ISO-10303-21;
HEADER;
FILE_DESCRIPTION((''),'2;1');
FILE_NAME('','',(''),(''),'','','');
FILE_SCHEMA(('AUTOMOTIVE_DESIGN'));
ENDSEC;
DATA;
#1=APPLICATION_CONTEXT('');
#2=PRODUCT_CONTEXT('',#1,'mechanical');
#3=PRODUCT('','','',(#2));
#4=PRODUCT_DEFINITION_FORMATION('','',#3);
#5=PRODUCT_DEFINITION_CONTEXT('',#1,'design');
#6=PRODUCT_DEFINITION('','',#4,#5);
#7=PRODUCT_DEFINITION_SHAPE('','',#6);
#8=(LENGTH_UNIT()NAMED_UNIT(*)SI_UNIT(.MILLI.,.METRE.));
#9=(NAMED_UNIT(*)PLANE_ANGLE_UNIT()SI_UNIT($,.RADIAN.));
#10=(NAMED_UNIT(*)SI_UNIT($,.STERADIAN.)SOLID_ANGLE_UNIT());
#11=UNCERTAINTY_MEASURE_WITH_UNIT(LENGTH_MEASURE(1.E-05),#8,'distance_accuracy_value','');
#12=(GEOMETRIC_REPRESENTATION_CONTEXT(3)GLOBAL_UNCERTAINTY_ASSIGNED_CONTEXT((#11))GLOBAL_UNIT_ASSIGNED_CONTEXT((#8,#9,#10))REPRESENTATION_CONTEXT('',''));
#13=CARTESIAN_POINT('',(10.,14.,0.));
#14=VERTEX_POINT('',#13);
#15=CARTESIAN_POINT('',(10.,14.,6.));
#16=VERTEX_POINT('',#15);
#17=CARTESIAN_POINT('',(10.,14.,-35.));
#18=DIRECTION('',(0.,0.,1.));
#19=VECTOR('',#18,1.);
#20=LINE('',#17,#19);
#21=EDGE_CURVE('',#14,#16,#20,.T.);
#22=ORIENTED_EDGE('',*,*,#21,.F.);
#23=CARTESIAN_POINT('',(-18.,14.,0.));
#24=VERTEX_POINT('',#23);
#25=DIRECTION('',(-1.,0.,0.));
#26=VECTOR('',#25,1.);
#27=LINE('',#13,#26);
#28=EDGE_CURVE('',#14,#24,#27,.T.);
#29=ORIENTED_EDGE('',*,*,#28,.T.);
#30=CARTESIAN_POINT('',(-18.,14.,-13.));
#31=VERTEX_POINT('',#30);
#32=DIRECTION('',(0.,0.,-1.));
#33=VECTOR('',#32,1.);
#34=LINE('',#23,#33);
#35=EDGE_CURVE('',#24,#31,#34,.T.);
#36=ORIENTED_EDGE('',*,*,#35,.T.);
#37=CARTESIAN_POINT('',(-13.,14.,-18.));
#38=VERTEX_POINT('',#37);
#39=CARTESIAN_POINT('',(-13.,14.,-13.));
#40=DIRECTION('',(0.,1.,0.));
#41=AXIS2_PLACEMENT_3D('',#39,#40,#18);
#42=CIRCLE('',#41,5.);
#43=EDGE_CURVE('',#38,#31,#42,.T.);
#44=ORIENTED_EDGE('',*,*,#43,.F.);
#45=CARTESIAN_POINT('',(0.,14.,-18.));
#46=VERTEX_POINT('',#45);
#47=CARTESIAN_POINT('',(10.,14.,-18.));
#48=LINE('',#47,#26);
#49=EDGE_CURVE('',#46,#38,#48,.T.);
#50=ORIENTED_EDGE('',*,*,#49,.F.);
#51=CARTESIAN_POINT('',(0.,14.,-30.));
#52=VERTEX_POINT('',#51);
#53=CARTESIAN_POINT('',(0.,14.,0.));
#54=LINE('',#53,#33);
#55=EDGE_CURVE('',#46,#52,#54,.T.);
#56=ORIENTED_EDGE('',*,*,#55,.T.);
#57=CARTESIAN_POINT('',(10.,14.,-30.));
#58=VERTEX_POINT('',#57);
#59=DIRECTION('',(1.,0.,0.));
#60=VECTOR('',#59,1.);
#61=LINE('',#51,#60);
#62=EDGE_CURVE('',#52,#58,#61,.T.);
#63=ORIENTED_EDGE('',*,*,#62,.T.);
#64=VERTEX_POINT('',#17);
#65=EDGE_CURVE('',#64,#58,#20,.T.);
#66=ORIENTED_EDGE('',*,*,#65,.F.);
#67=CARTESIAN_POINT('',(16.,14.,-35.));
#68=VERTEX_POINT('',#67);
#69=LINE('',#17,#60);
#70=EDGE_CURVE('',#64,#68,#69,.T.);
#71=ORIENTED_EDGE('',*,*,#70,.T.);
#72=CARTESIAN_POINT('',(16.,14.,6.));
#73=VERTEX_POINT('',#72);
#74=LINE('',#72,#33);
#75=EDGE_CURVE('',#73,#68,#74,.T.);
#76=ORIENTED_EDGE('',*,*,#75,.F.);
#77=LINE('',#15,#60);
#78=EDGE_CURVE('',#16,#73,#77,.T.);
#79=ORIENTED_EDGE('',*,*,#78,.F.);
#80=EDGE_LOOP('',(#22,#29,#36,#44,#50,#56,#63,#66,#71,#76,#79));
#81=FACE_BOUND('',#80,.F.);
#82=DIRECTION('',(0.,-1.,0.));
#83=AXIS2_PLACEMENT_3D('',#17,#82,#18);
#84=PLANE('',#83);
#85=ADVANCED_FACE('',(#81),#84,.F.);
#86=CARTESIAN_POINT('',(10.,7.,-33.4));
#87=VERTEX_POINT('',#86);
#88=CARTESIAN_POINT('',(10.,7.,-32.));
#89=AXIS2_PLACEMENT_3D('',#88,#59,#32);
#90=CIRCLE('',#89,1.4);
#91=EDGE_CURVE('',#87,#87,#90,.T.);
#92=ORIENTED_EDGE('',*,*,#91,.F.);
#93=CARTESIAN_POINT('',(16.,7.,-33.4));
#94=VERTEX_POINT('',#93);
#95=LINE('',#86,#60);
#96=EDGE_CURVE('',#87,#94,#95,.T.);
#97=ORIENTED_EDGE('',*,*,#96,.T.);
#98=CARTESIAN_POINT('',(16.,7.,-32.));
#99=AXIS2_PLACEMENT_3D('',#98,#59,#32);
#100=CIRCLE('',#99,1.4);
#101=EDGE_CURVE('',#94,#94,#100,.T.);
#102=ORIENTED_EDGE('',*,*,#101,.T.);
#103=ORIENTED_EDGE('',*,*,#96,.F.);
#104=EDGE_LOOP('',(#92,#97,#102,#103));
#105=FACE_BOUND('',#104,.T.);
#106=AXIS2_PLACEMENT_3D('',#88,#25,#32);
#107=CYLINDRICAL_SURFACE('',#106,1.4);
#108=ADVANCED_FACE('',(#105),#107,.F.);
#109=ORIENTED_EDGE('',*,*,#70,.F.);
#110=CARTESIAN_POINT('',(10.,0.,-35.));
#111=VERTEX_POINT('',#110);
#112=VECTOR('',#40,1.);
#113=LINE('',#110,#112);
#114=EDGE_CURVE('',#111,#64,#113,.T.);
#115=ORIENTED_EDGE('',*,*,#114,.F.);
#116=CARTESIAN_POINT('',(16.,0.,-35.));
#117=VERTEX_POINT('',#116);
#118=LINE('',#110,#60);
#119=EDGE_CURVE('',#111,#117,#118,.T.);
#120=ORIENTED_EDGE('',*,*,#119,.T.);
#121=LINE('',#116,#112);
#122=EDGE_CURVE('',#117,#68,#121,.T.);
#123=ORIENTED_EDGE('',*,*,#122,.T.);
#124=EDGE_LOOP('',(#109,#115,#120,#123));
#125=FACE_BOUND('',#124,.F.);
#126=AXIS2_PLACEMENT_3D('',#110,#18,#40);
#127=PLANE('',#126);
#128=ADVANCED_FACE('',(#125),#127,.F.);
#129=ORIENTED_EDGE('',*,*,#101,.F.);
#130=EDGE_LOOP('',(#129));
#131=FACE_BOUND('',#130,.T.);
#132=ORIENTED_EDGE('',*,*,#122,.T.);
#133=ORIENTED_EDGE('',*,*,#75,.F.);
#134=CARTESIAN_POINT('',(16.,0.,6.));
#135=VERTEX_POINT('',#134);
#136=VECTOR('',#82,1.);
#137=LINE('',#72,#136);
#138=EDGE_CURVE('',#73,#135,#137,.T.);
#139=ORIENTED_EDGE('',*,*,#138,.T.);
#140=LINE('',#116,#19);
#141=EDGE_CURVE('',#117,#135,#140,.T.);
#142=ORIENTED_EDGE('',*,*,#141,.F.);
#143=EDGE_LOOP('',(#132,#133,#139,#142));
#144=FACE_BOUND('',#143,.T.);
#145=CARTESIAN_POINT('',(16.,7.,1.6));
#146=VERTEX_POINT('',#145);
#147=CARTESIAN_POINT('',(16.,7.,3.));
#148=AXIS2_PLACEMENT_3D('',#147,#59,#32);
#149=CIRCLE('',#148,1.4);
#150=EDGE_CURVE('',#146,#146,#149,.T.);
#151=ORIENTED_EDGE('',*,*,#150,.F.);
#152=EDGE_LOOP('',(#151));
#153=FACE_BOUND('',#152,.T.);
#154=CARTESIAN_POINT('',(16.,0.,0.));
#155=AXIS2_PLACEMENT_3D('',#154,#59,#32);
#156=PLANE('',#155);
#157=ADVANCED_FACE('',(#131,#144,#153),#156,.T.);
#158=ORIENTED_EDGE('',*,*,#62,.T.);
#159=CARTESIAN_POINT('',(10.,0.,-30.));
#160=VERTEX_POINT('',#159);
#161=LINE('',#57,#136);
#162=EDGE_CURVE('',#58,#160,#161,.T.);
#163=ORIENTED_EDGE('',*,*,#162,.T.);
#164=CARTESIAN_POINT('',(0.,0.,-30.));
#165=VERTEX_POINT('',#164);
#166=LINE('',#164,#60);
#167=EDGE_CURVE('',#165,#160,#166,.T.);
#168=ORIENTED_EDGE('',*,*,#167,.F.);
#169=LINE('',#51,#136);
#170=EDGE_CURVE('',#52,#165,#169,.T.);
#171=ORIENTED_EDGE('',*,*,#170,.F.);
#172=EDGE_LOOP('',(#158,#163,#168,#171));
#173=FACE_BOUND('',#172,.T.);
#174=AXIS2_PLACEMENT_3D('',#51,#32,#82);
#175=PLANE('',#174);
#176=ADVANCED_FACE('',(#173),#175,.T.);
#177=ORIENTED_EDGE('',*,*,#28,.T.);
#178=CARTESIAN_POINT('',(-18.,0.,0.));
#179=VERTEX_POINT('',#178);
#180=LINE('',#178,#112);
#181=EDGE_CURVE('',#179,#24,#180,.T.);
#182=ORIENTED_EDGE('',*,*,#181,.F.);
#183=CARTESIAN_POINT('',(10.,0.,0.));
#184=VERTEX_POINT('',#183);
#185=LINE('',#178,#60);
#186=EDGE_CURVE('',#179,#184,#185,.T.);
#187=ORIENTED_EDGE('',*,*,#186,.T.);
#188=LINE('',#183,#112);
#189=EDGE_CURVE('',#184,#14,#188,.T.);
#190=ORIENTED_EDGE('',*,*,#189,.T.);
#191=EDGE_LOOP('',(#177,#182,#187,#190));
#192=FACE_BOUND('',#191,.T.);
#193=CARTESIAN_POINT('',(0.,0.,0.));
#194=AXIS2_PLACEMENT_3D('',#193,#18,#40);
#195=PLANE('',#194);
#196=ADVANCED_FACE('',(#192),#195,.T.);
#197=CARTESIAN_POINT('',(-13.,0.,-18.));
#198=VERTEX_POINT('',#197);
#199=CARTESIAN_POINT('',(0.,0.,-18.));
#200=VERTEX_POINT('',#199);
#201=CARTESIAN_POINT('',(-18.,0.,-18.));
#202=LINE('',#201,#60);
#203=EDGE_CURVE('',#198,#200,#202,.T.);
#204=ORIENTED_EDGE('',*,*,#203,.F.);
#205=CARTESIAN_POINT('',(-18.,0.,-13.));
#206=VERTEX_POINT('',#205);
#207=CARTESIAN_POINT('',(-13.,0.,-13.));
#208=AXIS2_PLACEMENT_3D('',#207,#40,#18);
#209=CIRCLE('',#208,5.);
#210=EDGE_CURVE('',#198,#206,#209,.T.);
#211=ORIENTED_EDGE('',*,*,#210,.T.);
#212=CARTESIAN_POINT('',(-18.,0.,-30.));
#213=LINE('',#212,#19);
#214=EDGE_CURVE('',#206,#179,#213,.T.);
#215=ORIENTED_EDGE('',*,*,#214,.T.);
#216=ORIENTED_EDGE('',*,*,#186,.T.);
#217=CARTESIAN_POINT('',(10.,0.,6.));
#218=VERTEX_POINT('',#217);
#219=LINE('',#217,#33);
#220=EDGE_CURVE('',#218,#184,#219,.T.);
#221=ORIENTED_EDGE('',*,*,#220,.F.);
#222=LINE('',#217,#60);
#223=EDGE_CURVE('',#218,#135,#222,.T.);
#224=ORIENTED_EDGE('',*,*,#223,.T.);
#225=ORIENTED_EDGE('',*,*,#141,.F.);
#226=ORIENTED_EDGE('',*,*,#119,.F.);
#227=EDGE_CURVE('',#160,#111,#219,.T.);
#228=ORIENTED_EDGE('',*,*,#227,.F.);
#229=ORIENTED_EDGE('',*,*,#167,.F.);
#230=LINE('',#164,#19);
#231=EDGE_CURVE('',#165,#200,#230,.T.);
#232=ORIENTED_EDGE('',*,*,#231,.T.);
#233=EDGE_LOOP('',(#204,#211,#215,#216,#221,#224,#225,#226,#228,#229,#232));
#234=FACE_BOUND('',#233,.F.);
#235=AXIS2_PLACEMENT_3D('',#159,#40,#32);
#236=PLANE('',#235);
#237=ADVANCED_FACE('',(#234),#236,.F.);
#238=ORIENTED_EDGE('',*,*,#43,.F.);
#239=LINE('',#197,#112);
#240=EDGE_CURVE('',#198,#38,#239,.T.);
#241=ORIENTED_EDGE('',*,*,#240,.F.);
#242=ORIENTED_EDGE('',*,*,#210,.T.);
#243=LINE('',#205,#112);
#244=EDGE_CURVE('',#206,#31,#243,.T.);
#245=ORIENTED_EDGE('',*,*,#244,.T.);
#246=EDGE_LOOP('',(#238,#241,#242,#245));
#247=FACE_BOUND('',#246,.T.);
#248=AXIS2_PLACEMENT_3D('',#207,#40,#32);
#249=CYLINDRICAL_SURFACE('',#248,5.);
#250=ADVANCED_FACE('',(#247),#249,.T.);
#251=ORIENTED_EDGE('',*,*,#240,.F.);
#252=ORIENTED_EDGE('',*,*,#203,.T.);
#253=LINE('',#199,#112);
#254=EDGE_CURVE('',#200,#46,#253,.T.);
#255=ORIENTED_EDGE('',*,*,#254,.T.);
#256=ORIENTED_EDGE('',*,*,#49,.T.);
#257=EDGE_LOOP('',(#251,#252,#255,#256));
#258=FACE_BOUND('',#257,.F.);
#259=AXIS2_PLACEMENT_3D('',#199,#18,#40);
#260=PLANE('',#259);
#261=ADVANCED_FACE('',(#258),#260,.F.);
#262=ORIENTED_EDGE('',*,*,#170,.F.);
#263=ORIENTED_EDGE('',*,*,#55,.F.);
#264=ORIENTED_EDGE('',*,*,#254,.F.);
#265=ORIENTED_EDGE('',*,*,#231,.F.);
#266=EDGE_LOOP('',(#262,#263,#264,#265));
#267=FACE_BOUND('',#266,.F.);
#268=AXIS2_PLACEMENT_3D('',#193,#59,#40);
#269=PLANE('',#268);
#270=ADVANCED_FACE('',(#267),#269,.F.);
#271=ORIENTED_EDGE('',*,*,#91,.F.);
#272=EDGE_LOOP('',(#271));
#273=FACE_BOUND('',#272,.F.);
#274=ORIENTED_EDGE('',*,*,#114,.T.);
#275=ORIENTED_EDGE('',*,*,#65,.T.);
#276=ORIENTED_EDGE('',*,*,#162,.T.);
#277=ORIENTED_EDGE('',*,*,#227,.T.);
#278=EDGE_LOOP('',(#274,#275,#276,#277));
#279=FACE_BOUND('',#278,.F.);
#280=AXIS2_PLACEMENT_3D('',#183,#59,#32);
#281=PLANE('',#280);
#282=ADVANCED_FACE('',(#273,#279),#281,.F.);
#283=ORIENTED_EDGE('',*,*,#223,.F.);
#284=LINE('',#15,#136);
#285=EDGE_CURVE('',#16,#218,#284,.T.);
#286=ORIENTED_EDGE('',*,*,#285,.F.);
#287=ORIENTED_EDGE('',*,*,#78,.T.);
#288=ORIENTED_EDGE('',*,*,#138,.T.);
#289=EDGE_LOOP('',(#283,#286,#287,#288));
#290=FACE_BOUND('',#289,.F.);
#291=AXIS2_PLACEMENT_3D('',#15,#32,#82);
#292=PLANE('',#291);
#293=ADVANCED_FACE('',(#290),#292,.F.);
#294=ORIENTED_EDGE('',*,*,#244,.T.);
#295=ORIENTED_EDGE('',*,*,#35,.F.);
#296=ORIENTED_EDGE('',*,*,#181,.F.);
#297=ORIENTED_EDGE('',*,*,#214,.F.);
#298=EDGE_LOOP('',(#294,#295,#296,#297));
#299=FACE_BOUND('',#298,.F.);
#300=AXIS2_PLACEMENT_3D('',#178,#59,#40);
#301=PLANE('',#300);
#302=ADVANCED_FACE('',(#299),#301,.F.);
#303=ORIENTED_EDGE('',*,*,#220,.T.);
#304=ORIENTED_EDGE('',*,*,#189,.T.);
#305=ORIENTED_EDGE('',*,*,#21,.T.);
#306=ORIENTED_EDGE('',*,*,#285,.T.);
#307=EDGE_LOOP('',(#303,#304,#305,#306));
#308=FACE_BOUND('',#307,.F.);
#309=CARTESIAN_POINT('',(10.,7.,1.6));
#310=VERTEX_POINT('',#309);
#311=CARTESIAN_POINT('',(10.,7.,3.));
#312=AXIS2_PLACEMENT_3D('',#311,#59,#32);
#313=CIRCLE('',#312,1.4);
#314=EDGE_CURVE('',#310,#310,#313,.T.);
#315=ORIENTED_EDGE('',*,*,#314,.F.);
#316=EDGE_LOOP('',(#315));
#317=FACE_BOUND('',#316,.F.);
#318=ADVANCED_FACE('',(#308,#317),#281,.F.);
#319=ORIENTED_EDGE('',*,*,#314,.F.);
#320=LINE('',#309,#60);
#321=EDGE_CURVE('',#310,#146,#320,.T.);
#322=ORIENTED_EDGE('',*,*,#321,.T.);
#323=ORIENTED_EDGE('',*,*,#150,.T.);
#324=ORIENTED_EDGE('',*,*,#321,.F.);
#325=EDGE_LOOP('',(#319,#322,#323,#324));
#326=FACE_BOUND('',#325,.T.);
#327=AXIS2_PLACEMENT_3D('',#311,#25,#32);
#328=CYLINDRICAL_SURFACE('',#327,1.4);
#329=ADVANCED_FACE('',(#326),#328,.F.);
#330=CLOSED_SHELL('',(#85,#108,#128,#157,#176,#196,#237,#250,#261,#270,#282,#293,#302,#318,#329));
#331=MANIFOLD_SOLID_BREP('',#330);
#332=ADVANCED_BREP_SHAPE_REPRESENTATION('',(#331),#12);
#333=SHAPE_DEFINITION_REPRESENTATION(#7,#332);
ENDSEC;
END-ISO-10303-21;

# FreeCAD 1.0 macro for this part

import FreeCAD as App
import Part
import Sketcher
from FreeCAD import Vector


def edges_at(feature, points):
    """Names of the edges that pass closest to the given points."""
    edges = feature.Shape.Edges
    near = lambda p: min(range(len(edges)), key=lambda i: edges[i].distToShape(Part.Vertex(*p))[0])
    return sorted({f"Edge{near(p) + 1}" for p in points})

doc = App.newDocument("Part")
body = doc.addObject("PartDesign::Body", "Body")

sketch1 = doc.addObject("Sketcher::SketchObject", "Sketch")
body.addObject(sketch1)
sketch1.AttachmentSupport = (doc.YZ_Plane, [""])
sketch1.MapMode = "FlatFace"
sketch1.addGeometry(Part.LineSegment(Vector(14, -18, 0), Vector(0, -18, 0)), False)
sketch1.addGeometry(Part.LineSegment(Vector(0, -18, 0), Vector(0, -30, 0)), False)
sketch1.addGeometry(Part.LineSegment(Vector(0, -30, 0), Vector(14, -30, 0)), False)
sketch1.addGeometry(Part.LineSegment(Vector(14, -30, 0), Vector(14, -18, 0)), False)
sketch1.addConstraint(Sketcher.Constraint("Coincident", 0, 2, 1, 1))
sketch1.addConstraint(Sketcher.Constraint("Coincident", 1, 2, 2, 1))
sketch1.addConstraint(Sketcher.Constraint("Coincident", 2, 2, 3, 1))
sketch1.addConstraint(Sketcher.Constraint("Coincident", 3, 2, 0, 1))
sketch1.addConstraint(Sketcher.Constraint("Horizontal", 0))
sketch1.addConstraint(Sketcher.Constraint("Vertical", 1))
sketch1.addConstraint(Sketcher.Constraint("Horizontal", 2))
sketch1.addConstraint(Sketcher.Constraint("Vertical", 3))
sketch1.addConstraint(Sketcher.Constraint("PointOnObject", 0, 2, -2))
sketch1.addConstraint(Sketcher.Constraint("DistanceX", 0, 2, 0, 1, 14.0))
sketch1.addConstraint(Sketcher.Constraint("DistanceY", 1, 2, 1, 1, 12.0))
sketch1.addConstraint(Sketcher.Constraint("DistanceY", 1, 2, -1, 1, 30.0))
pad1 = doc.addObject("PartDesign::Pad", "Pad")
body.addObject(pad1)
pad1.Profile = sketch1
pad1.Length = 10

sketch2 = doc.addObject("Sketcher::SketchObject", "Sketch001")
body.addObject(sketch2)
sketch2.AttachmentSupport = (doc.YZ_Plane, [""])
sketch2.MapMode = "FlatFace"
sketch2.addGeometry(Part.LineSegment(Vector(14, 0, 0), Vector(0, 0, 0)), False)
sketch2.addGeometry(Part.LineSegment(Vector(0, 0, 0), Vector(0, -18, 0)), False)
sketch2.addGeometry(Part.LineSegment(Vector(0, -18, 0), Vector(14, -18, 0)), False)
sketch2.addGeometry(Part.LineSegment(Vector(14, -18, 0), Vector(14, 0, 0)), False)
sketch2.addConstraint(Sketcher.Constraint("Coincident", 0, 2, 1, 1))
sketch2.addConstraint(Sketcher.Constraint("Coincident", 1, 2, 2, 1))
sketch2.addConstraint(Sketcher.Constraint("Coincident", 2, 2, 3, 1))
sketch2.addConstraint(Sketcher.Constraint("Coincident", 3, 2, 0, 1))
sketch2.addConstraint(Sketcher.Constraint("Horizontal", 0))
sketch2.addConstraint(Sketcher.Constraint("Vertical", 1))
sketch2.addConstraint(Sketcher.Constraint("Horizontal", 2))
sketch2.addConstraint(Sketcher.Constraint("Vertical", 3))
sketch2.addConstraint(Sketcher.Constraint("Coincident", 0, 2, -1, 1))
sketch2.addConstraint(Sketcher.Constraint("DistanceX", 0, 2, 0, 1, 14.0))
sketch2.addConstraint(Sketcher.Constraint("DistanceY", 1, 2, 1, 1, 18.0))
pad2 = doc.addObject("PartDesign::Pad", "Pad001")
body.addObject(pad2)
pad2.Profile = sketch2
pad2.Type = "TwoLengths"
pad2.Length = 10
pad2.Length2 = 18
doc.recompute()

fillet = doc.addObject("PartDesign::Fillet", "Fillet")
body.addObject(fillet)
fillet.Base = (pad2, edges_at(pad2, [(-18, 7, -18)]))
fillet.Radius = 5

sketch3 = doc.addObject("Sketcher::SketchObject", "Sketch002")
body.addObject(sketch3)
sketch3.AttachmentSupport = (doc.YZ_Plane, [""])
sketch3.MapMode = "FlatFace"
sketch3.AttachmentOffset = App.Placement(Vector(0, 0, 10), App.Rotation())
sketch3.addGeometry(Part.LineSegment(Vector(0, -35, 0), Vector(14, -35, 0)), False)
sketch3.addGeometry(Part.LineSegment(Vector(14, -35, 0), Vector(14, 6, 0)), False)
sketch3.addGeometry(Part.LineSegment(Vector(14, 6, 0), Vector(0, 6, 0)), False)
sketch3.addGeometry(Part.LineSegment(Vector(0, 6, 0), Vector(0, -35, 0)), False)
sketch3.addGeometry(Part.Circle(Vector(7, -32, 0), Vector(0, 0, 1), 1.4), False)
sketch3.addGeometry(Part.Circle(Vector(7, 3, 0), Vector(0, 0, 1), 1.4), False)
sketch3.addConstraint(Sketcher.Constraint("Coincident", 0, 2, 1, 1))
sketch3.addConstraint(Sketcher.Constraint("Coincident", 1, 2, 2, 1))
sketch3.addConstraint(Sketcher.Constraint("Coincident", 2, 2, 3, 1))
sketch3.addConstraint(Sketcher.Constraint("Coincident", 3, 2, 0, 1))
sketch3.addConstraint(Sketcher.Constraint("Horizontal", 0))
sketch3.addConstraint(Sketcher.Constraint("Vertical", 1))
sketch3.addConstraint(Sketcher.Constraint("Horizontal", 2))
sketch3.addConstraint(Sketcher.Constraint("Vertical", 3))
sketch3.addConstraint(Sketcher.Constraint("Equal", 4, 5))
sketch3.addConstraint(Sketcher.Constraint("PointOnObject", 2, 2, -2))
sketch3.addConstraint(Sketcher.Constraint("Vertical", 4, 3, 5, 3))
sketch3.addConstraint(Sketcher.Constraint("Diameter", 4, 2.8))
sketch3.addConstraint(Sketcher.Constraint("DistanceX", 0, 1, 0, 2, 14.0))
sketch3.addConstraint(Sketcher.Constraint("DistanceY", 1, 1, 1, 2, 41.0))
sketch3.addConstraint(Sketcher.Constraint("DistanceY", -1, 1, 5, 3, 3.0))
sketch3.addConstraint(Sketcher.Constraint("DistanceY", 0, 2, -1, 1, 35.0))
sketch3.addConstraint(Sketcher.Constraint("DistanceY", 4, 3, 5, 3, 35.0))
sketch3.addConstraint(Sketcher.Constraint("DistanceX", -1, 1, 4, 3, 7.0))
pad3 = doc.addObject("PartDesign::Pad", "Pad002")
body.addObject(pad3)
pad3.Profile = sketch3
pad3.Length = 6

doc.recompute()
